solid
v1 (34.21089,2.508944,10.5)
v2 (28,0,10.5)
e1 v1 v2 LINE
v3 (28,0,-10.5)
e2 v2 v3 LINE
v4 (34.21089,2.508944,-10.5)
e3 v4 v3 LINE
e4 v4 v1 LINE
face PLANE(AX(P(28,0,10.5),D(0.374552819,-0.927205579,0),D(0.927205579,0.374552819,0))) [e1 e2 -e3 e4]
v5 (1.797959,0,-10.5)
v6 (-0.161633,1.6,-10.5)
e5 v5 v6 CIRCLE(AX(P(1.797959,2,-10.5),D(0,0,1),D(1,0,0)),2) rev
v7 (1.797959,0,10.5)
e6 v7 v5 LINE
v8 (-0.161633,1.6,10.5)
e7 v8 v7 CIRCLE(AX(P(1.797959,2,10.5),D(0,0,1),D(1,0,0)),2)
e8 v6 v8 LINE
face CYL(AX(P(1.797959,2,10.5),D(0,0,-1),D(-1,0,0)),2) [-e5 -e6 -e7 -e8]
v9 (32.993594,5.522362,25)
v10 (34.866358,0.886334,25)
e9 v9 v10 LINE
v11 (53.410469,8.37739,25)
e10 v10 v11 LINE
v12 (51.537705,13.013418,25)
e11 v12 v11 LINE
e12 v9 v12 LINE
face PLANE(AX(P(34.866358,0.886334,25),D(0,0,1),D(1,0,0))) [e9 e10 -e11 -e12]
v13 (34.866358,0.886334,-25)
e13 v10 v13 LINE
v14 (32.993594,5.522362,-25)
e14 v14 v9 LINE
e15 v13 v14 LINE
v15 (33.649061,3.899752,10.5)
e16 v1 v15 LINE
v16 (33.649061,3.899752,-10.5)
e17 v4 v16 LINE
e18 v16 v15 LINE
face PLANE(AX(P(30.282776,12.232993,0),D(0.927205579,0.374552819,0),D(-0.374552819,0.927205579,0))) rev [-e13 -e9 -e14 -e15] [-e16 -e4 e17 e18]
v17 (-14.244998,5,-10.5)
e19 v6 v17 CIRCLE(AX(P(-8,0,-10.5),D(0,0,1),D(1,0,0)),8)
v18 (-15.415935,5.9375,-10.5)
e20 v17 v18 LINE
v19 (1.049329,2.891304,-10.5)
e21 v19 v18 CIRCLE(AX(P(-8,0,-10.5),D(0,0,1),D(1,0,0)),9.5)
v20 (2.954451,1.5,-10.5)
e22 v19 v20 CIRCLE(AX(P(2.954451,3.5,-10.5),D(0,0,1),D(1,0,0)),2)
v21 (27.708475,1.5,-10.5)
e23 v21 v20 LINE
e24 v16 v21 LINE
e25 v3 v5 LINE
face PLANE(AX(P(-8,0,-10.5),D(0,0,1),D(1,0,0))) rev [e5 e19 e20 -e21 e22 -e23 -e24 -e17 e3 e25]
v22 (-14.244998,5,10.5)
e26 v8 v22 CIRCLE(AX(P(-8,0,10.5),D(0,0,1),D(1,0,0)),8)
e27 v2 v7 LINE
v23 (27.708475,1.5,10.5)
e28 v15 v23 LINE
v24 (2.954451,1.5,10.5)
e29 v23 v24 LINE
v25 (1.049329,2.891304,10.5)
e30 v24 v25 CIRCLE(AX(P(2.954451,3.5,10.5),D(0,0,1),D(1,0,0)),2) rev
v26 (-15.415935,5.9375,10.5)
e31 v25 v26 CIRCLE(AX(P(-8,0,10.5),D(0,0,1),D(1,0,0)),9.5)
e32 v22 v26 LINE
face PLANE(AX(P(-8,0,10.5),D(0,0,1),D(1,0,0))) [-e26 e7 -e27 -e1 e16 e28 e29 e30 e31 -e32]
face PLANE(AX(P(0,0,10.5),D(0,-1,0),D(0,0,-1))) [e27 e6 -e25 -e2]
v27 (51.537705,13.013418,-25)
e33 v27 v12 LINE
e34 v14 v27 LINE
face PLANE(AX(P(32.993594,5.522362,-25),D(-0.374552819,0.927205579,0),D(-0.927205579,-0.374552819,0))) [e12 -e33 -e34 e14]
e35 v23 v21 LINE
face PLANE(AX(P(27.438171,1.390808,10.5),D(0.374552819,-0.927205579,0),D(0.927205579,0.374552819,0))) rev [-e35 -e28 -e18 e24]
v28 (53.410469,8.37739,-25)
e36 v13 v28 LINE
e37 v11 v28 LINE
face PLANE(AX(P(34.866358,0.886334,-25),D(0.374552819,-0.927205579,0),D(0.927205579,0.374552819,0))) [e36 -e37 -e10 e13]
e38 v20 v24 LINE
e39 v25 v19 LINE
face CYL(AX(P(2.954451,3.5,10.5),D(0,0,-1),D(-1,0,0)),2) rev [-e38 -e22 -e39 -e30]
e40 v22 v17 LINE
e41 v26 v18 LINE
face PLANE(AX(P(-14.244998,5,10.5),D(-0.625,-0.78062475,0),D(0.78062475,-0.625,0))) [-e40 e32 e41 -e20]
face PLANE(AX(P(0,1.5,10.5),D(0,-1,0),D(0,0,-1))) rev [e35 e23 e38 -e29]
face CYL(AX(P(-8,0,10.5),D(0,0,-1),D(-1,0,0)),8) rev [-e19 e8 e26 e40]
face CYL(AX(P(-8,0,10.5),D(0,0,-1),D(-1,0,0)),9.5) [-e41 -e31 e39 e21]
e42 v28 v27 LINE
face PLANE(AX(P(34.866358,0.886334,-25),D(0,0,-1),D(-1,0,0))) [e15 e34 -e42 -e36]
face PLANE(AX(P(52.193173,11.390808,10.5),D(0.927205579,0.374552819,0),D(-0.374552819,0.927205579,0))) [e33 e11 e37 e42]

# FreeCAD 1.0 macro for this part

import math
import FreeCAD as App
import Part
import Sketcher
from FreeCAD import Vector


def edges_at(feature, points):
    """Names of the edges that pass closest to the given points."""
    edges = feature.Shape.Edges
    near = lambda p: min(range(len(edges)), key=lambda i: edges[i].distToShape(Part.Vertex(*p))[0])
    return sorted({f"Edge{near(p) + 1}" for p in points})

doc = App.newDocument("Part")
body = doc.addObject("PartDesign::Body", "Body")

# Sketch on XY plane
sketch1 = body.newObject("Sketcher::SketchObject", "Sketch")
sketch1.AttachmentSupport = (doc.getObject("XY_Plane"), [""])
sketch1.MapMode = "FlatFace"
sketch1.addGeometry([
    Part.ArcOfCircle(Part.Circle(Vector(-8, 0, 0), Vector(0, 0, 1), 8), math.radians(0), math.radians(141.317813)),  # 0
    Part.LineSegment(Vector(0, 0, 0), Vector(28, 0, 0)),  # 1
    Part.LineSegment(Vector(28, 0, 0), Vector(52.755002, 10, 0)),  # 2
    Part.LineSegment(Vector(52.755002, 10, 0), Vector(52.193173, 11.390808, 0)),  # 3
    Part.LineSegment(Vector(52.193173, 11.390808, 0), Vector(27.708475, 1.5, 0)),  # 4
    Part.LineSegment(Vector(27.708475, 1.5, 0), Vector(1.380832, 1.5, 0)),  # 5
    Part.ArcOfCircle(Part.Circle(Vector(-8, 0, 0), Vector(0, 0, 1), 9.5), math.radians(9.08472), math.radians(141.317813)),  # 6
    Part.LineSegment(Vector(-15.415935, 5.9375, 0), Vector(-14.244998, 5, 0)),  # 7
], False)
sketch1.addConstraint([
    Sketcher.Constraint("Coincident", 0, 1, 1, 1),
    Sketcher.Constraint("Coincident", 1, 2, 2, 1),
    Sketcher.Constraint("Coincident", 2, 2, 3, 1),
    Sketcher.Constraint("Coincident", 3, 2, 4, 1),
    Sketcher.Constraint("Coincident", 4, 2, 5, 1),
    Sketcher.Constraint("Coincident", 5, 2, 6, 1),
    Sketcher.Constraint("Coincident", 6, 2, 7, 1),
    Sketcher.Constraint("Coincident", 7, 2, 0, 2),
    Sketcher.Constraint("Horizontal", 1),
    Sketcher.Constraint("Horizontal", 5),
    Sketcher.Constraint("Coincident", 0, 1, -1, 1),
    Sketcher.Constraint("Coincident", 6, 3, 0, 3),
    Sketcher.Constraint("PointOnObject", 0, 3, -1),
    Sketcher.Constraint("Perpendicular", 2, 3),
    Sketcher.Constraint("Perpendicular", 3, 4),
    Sketcher.Constraint("Equal", 3, 7),
    Sketcher.Constraint("Radius", 0, 8.0),
    Sketcher.Constraint("Radius", 6, 9.5),
    Sketcher.Constraint("DistanceX", 1, 1, 1, 2, 28.0),
    Sketcher.Constraint("DistanceY", -1, 1, 2, 2, 10.0),
    Sketcher.Constraint("DistanceY", -1, 1, 7, 2, 5.0),
    Sketcher.Constraint("DistanceY", -1, 1, 4, 2, 1.5),
    Sketcher.Constraint("DistanceY", -1, 1, 6, 2, 5.9375),
    Sketcher.Constraint("DistanceX", 4, 2, 3, 2, 24.484698),
])
pad1 = body.newObject("PartDesign::Pad", "Pad")
pad1.Profile = sketch1
pad1.Length = 21
pad1.Midplane = True
doc.recompute()

fillet = body.newObject("PartDesign::Fillet", "Fillet")
fillet.Base = (pad1, edges_at(pad1, [(0, 0, 0)]))
fillet.Radius = 2
doc.recompute()

fillet2 = body.newObject("PartDesign::Fillet", "Fillet001")
fillet2.Base = (fillet, edges_at(fillet, [(1.381, 1.5, 0)]))
fillet2.Radius = 2

# Sketch on an angled plane
sketch2 = body.newObject("Sketcher::SketchObject", "Sketch001")
sketch2.Placement = App.Placement(Vector(48.826887, 19.724049, 0), App.Rotation(Vector(0, 0, -1), Vector(-0.374552819, 0.927205579, 0), Vector(0.927205579, 0.374552819, 0), "ZXY"))
sketch2.addGeometry([
    Part.LineSegment(Vector(-25, -7.237479, 0), Vector(-25, -12.237479, 0)),
    Part.LineSegment(Vector(-25, -12.237479, 0), Vector(25, -12.237479, 0)),
    Part.LineSegment(Vector(25, -12.237479, 0), Vector(25, -7.237479, 0)),
    Part.LineSegment(Vector(25, -7.237479, 0), Vector(-25, -7.237479, 0)),
], False)
sketch2.addConstraint([
    Sketcher.Constraint("Coincident", 0, 2, 1, 1),
    Sketcher.Constraint("Coincident", 1, 2, 2, 1),
    Sketcher.Constraint("Coincident", 2, 2, 3, 1),
    Sketcher.Constraint("Coincident", 3, 2, 0, 1),
    Sketcher.Constraint("Vertical", 0),
    Sketcher.Constraint("Horizontal", 1),
    Sketcher.Constraint("Vertical", 2),
    Sketcher.Constraint("Horizontal", 3),
    Sketcher.Constraint("DistanceX", 1, 1, 1, 2, 50.0),
    Sketcher.Constraint("DistanceY", 0, 2, 0, 1, 5.0),
    Sketcher.Constraint("DistanceX", 0, 2, -1, 1, 25.0),
    Sketcher.Constraint("DistanceY", 0, 2, -1, 1, 12.237479),
])
pad2 = body.newObject("PartDesign::Pad", "Pad001")
pad2.Profile = sketch2
pad2.Length = 20
pad2.Reversed = True

doc.recompute()
